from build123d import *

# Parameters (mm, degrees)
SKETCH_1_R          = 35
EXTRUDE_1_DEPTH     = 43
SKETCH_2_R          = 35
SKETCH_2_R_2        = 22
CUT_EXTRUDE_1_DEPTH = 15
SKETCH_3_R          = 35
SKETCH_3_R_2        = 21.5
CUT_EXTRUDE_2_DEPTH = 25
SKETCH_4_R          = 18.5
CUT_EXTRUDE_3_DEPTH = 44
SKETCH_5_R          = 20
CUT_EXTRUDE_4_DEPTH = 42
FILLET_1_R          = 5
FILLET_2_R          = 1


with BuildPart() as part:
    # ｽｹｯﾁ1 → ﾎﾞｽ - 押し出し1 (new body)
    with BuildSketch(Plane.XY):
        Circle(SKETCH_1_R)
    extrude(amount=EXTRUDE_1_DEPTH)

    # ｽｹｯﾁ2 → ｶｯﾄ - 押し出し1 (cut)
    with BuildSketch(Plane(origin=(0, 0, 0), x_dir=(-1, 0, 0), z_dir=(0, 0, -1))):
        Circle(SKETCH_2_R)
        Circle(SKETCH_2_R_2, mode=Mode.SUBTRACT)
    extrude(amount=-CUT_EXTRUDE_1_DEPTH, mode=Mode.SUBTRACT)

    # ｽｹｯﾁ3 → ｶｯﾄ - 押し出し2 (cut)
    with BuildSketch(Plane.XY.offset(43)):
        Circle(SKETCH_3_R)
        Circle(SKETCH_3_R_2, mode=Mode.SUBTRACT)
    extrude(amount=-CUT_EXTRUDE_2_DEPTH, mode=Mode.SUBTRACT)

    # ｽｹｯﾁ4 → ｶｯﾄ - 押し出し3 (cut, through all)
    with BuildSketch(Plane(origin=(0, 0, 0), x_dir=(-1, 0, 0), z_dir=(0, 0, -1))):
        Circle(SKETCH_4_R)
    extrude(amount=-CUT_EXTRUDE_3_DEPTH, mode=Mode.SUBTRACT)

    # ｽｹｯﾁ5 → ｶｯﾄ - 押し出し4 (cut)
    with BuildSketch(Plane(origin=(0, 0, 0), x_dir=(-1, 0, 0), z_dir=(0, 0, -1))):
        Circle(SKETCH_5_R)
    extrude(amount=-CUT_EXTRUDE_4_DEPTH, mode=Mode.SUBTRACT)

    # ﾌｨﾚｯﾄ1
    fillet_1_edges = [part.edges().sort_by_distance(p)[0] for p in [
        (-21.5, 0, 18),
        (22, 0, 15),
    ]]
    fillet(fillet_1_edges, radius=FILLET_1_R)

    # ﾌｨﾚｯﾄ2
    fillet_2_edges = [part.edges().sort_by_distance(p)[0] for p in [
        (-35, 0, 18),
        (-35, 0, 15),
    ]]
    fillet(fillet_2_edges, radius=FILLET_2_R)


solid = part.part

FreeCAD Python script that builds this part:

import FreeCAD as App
import Part
import Sketcher
from FreeCAD import Vector


def edges_at(feature, points):
    """Names of the edges that pass closest to the given points."""
    edges = feature.Shape.Edges
    near = lambda p: min(range(len(edges)), key=lambda i: edges[i].distToShape(Part.Vertex(*p))[0])
    return sorted({f"Edge{near(p) + 1}" for p in points})

doc = App.newDocument("Part")
body = doc.addObject("PartDesign::Body", "Body")

# Sketch on XY plane
sketch1 = body.newObject("Sketcher::SketchObject", "Sketch")
sketch1.AttachmentSupport = (doc.getObject("XY_Plane"), [""])
sketch1.MapMode = "FlatFace"
sketch1.addGeometry(Part.Circle(Vector(0, 0, 0), Vector(0, 0, 1), 35), False)
sketch1.addConstraint(Sketcher.Constraint("Coincident", 0, 3, -1, 1))
sketch1.addConstraint(Sketcher.Constraint("Diameter", 0, 70.0))
pad1 = body.newObject("PartDesign::Pad", "Pad")
pad1.Profile = sketch1
pad1.Length = 43

# Sketch on XY plane
sketch2 = body.newObject("Sketcher::SketchObject", "Sketch001")
sketch2.AttachmentSupport = (doc.getObject("XY_Plane"), [""])
sketch2.MapMode = "FlatFace"
sketch2.addGeometry(Part.Circle(Vector(0, 0, 0), Vector(0, 0, 1), 35), False)
sketch2.addGeometry(Part.Circle(Vector(0, 0, 0), Vector(0, 0, 1), 22), False)
sketch2.addConstraint(Sketcher.Constraint("Coincident", 0, 3, -1, 1))
sketch2.addConstraint(Sketcher.Constraint("Coincident", 1, 3, -1, 1))
sketch2.addConstraint(Sketcher.Constraint("Diameter", 0, 70.0))
sketch2.addConstraint(Sketcher.Constraint("Diameter", 1, 44.0))
pocket1 = body.newObject("PartDesign::Pocket", "Pocket")
pocket1.Profile = sketch2
pocket1.Length = 15
pocket1.Reversed = True

# Sketch on XY plane
sketch3 = body.newObject("Sketcher::SketchObject", "Sketch002")
sketch3.AttachmentSupport = (doc.getObject("XY_Plane"), [""])
sketch3.MapMode = "FlatFace"
sketch3.AttachmentOffset = App.Placement(Vector(0, 0, 43), App.Rotation())
sketch3.addGeometry(Part.Circle(Vector(0, 0, 0), Vector(0, 0, 1), 35), False)
sketch3.addGeometry(Part.Circle(Vector(0, 0, 0), Vector(0, 0, 1), 22), False)
sketch3.addConstraint(Sketcher.Constraint("Coincident", 0, 3, -1, 1))
sketch3.addConstraint(Sketcher.Constraint("Coincident", 1, 3, -1, 1))
sketch3.addConstraint(Sketcher.Constraint("Diameter", 0, 70.0))
sketch3.addConstraint(Sketcher.Constraint("Diameter", 1, 43.0))
pocket2 = body.newObject("PartDesign::Pocket", "Pocket001")
pocket2.Profile = sketch3
pocket2.Length = 25

# Sketch on XY plane
sketch4 = body.newObject("Sketcher::SketchObject", "Sketch003")
sketch4.AttachmentSupport = (doc.getObject("XY_Plane"), [""])
sketch4.MapMode = "FlatFace"
sketch4.addGeometry(Part.Circle(Vector(0, 0, 0), Vector(0, 0, 1), 18), False)
sketch4.addConstraint(Sketcher.Constraint("Coincident", 0, 3, -1, 1))
sketch4.addConstraint(Sketcher.Constraint("Diameter", 0, 37.0))
pocket3 = body.newObject("PartDesign::Pocket", "Pocket002")
pocket3.Profile = sketch4
pocket3.Type = "ThroughAll"
pocket3.Reversed = True

# Sketch on XY plane
sketch5 = body.newObject("Sketcher::SketchObject", "Sketch004")
sketch5.AttachmentSupport = (doc.getObject("XY_Plane"), [""])
sketch5.MapMode = "FlatFace"
sketch5.addGeometry(Part.Circle(Vector(0, 0, 0), Vector(0, 0, 1), 20), False)
sketch5.addConstraint(Sketcher.Constraint("Coincident", 0, 3, -1, 1))
sketch5.addConstraint(Sketcher.Constraint("Diameter", 0, 40.0))
pocket4 = body.newObject("PartDesign::Pocket", "Pocket003")
pocket4.Profile = sketch5
pocket4.Length = 42
pocket4.Reversed = True
doc.recompute()

fillet = body.newObject("PartDesign::Fillet", "Fillet")
fillet.Base = (pocket4, edges_at(pocket4, [(-21.5, 0, 18), (22, 0, 15)]))
fillet.Radius = 5
doc.recompute()

fillet2 = body.newObject("PartDesign::Fillet", "Fillet001")
fillet2.Base = (fillet, edges_at(fillet, [(-35, 0, 18), (-35, 0, 15)]))
fillet2.Radius = 1

doc.recompute()
